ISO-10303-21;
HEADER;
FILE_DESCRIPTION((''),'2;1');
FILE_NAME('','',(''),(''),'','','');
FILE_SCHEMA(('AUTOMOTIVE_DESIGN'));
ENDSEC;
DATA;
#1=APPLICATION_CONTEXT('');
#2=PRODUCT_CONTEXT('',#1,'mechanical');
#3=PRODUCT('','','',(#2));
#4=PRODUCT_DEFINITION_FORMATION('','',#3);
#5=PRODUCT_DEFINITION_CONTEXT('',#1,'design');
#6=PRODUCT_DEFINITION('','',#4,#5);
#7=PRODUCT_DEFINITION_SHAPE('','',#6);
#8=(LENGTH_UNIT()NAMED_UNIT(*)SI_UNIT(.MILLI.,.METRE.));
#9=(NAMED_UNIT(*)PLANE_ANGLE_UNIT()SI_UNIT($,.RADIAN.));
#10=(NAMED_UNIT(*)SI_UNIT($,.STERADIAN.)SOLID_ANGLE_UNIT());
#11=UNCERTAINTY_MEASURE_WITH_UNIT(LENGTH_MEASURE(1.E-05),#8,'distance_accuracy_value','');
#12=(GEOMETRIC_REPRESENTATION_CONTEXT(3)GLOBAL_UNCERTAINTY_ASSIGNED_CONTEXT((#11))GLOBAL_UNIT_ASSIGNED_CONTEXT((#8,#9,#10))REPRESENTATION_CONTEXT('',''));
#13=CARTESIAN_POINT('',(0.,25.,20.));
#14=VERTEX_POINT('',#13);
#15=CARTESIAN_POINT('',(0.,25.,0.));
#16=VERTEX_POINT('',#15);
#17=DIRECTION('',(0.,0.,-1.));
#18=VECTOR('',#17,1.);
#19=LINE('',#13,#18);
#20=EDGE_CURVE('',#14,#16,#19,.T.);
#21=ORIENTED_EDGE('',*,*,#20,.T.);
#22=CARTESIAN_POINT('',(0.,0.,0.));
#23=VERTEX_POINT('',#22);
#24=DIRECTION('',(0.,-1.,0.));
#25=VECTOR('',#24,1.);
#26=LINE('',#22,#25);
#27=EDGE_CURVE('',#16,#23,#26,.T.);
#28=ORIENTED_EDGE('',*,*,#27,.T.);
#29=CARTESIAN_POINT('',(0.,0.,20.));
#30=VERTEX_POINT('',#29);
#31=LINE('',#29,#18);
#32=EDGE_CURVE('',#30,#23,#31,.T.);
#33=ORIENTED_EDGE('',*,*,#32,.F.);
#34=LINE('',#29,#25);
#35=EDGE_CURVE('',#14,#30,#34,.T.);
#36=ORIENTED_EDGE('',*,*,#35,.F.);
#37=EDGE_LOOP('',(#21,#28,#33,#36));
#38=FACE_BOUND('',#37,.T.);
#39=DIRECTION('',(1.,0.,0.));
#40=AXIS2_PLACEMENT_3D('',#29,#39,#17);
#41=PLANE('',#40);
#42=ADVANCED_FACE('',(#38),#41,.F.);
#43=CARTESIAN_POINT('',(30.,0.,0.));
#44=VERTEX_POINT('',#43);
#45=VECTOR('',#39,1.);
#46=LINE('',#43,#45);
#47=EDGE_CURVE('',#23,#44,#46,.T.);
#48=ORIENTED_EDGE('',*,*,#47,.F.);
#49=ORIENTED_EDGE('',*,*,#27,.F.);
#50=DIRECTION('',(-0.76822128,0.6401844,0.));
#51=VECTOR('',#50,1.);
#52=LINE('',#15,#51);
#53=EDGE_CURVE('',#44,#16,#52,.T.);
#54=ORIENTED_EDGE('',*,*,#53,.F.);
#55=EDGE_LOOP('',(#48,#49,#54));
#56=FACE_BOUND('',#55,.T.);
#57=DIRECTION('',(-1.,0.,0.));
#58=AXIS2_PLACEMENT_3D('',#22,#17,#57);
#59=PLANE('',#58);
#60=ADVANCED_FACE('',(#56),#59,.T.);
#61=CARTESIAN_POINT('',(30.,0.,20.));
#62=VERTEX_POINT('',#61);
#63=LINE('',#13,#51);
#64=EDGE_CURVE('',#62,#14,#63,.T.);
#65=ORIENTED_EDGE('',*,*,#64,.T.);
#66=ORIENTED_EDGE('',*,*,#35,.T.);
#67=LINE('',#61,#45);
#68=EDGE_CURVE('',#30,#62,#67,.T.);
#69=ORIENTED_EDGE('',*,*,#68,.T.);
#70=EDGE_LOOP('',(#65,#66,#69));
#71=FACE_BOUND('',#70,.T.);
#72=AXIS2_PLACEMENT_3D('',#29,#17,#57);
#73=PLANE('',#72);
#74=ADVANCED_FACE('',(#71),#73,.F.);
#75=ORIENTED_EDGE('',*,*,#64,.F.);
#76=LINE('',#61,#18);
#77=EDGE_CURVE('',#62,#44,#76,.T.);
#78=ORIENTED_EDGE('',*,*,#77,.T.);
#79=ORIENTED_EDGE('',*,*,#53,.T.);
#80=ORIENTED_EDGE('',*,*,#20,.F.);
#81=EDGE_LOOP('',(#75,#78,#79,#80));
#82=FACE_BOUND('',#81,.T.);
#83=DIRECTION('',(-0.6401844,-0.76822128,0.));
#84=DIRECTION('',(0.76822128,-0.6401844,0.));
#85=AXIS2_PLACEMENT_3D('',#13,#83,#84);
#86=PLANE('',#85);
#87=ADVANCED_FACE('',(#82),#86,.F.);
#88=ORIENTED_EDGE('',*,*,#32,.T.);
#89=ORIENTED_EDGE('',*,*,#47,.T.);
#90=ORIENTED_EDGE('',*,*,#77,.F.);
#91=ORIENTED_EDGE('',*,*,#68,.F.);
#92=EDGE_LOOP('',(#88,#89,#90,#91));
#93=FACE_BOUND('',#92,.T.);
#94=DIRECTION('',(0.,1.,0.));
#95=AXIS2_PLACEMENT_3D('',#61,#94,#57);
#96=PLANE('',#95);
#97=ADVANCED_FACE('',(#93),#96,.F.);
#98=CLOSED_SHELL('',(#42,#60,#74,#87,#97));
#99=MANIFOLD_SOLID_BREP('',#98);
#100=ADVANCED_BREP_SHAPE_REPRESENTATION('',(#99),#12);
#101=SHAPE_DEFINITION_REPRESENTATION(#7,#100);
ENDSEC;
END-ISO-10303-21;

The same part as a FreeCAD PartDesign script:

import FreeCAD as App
import Part
import Sketcher

doc = App.newDocument("Part")
params = doc.addObject("Spreadsheet::Sheet", "Params")
for row, (alias, value) in enumerate([
    ("sketch1_width", "30 mm"),
    ("sketch1_height", "25 mm"),
    ("pad1_length", "20 mm"),
], start=1):
    params.set(f"A{row}", alias)
    params.set(f"B{row}", "=" + value)
    params.setAlias(f"B{row}", alias)

body = doc.addObject("PartDesign::Body", "Body")

sketch1 = body.newObject("Sketcher::SketchObject", "Sketch")
sketch1.AttachmentSupport = (doc.getObject("XY_Plane"), [""])
sketch1.MapMode = "FlatFace"
sketch1.addGeometry([
    Part.LineSegment(App.Vector(0, 25, 0), App.Vector(0, 0, 0)),
    Part.LineSegment(App.Vector(0, 0, 0), App.Vector(30, 0, 0)),
    Part.LineSegment(App.Vector(30, 0, 0), App.Vector(0, 25, 0)),
], False)
sketch1.addConstraint([
    Sketcher.Constraint("Coincident", 0, 2, 1, 1),
    Sketcher.Constraint("Coincident", 1, 2, 2, 1),
    Sketcher.Constraint("Coincident", 2, 2, 0, 1),
    Sketcher.Constraint("Vertical", 0),
    Sketcher.Constraint("Horizontal", 1),
    Sketcher.Constraint("Coincident", 0, 2, -1, 1),
    Sketcher.Constraint("DistanceX", 1, 1, 1, 2, 30.0),
    Sketcher.Constraint("DistanceY", 0, 2, 0, 1, 25.0),
])
sketch1.setExpression("Constraints[6]", "Params.sketch1_width")
sketch1.setExpression("Constraints[7]", "Params.sketch1_height")
pad1 = body.newObject("PartDesign::Pad", "Pad")
pad1.Profile = sketch1
pad1.setExpression("Length", "Params.pad1_length")

doc.recompute()
